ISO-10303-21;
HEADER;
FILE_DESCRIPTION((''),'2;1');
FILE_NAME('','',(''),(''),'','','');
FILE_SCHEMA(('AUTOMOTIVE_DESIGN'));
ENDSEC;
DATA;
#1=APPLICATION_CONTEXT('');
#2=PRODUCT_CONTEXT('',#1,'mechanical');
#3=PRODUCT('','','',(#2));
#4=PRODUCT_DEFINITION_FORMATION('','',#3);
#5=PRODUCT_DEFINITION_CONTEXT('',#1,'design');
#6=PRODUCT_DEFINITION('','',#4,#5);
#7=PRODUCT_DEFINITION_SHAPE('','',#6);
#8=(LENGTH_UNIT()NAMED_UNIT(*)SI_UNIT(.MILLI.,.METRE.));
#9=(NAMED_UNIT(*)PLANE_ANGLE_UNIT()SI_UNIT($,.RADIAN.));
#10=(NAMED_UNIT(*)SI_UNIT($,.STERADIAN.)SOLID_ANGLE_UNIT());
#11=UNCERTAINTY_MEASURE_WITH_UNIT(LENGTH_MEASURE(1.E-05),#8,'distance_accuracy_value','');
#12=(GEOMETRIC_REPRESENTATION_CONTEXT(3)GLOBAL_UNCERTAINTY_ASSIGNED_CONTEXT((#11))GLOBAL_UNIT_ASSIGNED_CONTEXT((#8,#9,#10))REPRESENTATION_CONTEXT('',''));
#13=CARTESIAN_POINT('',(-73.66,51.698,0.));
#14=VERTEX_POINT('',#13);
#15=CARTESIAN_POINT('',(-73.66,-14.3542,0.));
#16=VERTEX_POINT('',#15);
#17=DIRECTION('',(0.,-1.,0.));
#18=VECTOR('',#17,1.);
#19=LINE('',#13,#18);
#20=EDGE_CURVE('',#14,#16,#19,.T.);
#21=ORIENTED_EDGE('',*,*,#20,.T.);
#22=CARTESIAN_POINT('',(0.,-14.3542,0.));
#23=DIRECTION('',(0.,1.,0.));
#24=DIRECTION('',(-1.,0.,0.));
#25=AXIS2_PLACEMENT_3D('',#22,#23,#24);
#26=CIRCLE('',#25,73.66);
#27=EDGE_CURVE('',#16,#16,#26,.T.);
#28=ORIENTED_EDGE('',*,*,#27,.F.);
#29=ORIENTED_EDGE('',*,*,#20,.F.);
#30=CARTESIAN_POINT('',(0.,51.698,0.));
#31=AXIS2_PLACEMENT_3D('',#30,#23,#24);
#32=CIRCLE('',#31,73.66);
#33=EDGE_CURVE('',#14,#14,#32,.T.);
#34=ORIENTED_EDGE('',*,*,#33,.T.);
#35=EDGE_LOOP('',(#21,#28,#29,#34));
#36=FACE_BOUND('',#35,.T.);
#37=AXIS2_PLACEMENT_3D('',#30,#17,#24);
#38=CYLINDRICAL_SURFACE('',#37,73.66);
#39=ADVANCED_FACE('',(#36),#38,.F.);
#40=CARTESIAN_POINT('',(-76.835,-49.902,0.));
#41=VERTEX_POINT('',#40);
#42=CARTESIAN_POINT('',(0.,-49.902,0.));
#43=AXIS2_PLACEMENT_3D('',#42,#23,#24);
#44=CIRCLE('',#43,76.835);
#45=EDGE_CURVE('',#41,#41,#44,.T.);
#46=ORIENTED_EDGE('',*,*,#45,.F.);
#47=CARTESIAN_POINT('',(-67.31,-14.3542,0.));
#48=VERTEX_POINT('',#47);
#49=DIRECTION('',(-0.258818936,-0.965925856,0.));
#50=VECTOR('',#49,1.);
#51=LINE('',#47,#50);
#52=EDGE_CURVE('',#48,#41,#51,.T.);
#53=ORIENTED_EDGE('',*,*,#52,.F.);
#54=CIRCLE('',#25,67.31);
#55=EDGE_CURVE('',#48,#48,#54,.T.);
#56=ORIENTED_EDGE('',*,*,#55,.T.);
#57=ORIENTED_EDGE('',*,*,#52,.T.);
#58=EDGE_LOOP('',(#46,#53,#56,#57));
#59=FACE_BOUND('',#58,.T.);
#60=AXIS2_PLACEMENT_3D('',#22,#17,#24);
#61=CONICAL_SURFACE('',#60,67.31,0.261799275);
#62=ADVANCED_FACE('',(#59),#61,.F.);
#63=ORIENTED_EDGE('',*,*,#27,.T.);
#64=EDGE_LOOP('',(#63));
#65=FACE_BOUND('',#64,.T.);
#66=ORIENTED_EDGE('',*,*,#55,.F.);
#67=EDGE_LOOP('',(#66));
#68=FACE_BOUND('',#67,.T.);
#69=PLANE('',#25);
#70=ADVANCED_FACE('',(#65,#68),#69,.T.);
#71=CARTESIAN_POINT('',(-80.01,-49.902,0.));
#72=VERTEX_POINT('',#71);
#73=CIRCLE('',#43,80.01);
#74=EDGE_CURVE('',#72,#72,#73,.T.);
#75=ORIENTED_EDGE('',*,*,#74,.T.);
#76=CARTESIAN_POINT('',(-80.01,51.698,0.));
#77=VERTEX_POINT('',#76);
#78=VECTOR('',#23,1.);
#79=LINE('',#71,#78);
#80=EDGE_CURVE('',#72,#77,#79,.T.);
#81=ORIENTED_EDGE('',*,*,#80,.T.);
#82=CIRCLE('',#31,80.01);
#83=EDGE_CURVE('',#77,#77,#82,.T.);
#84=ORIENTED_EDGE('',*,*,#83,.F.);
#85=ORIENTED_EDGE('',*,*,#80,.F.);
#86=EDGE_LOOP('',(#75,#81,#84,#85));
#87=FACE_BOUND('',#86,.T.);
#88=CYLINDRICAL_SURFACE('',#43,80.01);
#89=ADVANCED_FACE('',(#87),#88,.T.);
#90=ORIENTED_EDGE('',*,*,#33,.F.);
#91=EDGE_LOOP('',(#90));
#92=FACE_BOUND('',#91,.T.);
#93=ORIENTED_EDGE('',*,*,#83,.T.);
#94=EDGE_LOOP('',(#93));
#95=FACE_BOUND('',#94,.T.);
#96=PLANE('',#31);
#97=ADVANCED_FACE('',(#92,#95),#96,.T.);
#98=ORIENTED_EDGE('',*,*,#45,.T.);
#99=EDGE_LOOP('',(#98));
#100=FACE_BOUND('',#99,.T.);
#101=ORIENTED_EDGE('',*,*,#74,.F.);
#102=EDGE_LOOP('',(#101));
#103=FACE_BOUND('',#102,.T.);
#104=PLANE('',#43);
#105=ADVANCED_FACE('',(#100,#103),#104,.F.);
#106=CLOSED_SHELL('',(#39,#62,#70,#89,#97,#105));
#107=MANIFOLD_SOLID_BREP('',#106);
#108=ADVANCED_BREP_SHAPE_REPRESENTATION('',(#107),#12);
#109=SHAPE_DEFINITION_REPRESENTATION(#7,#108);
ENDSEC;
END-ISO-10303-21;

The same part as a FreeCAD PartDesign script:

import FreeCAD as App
import Part
import Sketcher
from FreeCAD import Vector
Q = App.Units.Quantity

doc = App.newDocument("Part")
body = doc.addObject("PartDesign::Body", "Body")

# Sketch on XY plane
sketch1 = body.newObject("Sketcher::SketchObject", "Sketch")
sketch1.AttachmentSupport = (doc.getObject("XY_Plane"), [""])
sketch1.MapMode = "FlatFace"
sketch1.addGeometry(Part.LineSegment(Vector(-73.7, -14.4, 0), Vector(-73.7, 51.7, 0)), False)
sketch1.addGeometry(Part.LineSegment(Vector(-73.7, 51.7, 0), Vector(-80, 51.7, 0)), False)
sketch1.addGeometry(Part.LineSegment(Vector(-80, 51.7, 0), Vector(-80, -49.9, 0)), False)
sketch1.addGeometry(Part.LineSegment(Vector(-80, -49.9, 0), Vector(-76.8, -49.9, 0)), False)
sketch1.addGeometry(Part.LineSegment(Vector(-76.8, -49.9, 0), Vector(-67.3, -14.4, 0)), False)
sketch1.addGeometry(Part.LineSegment(Vector(-67.3, -14.4, 0), Vector(-73.7, -14.4, 0)), False)
sketch1.addConstraint(Sketcher.Constraint("Coincident", 0, 2, 1, 1))
sketch1.addConstraint(Sketcher.Constraint("Coincident", 1, 2, 2, 1))
sketch1.addConstraint(Sketcher.Constraint("Coincident", 2, 2, 3, 1))
sketch1.addConstraint(Sketcher.Constraint("Coincident", 3, 2, 4, 1))
sketch1.addConstraint(Sketcher.Constraint("Coincident", 4, 2, 5, 1))
sketch1.addConstraint(Sketcher.Constraint("Coincident", 5, 2, 0, 1))
sketch1.addConstraint(Sketcher.Constraint("Vertical", 0))
sketch1.addConstraint(Sketcher.Constraint("Horizontal", 1))
sketch1.addConstraint(Sketcher.Constraint("Vertical", 2))
sketch1.addConstraint(Sketcher.Constraint("Horizontal", 3))
sketch1.addConstraint(Sketcher.Constraint("Horizontal", 5))
sketch1.addConstraint(Sketcher.Constraint("Equal", 1, 5))
sketch1.addConstraint(Sketcher.Constraint("DistanceY", 2, 2, 2, 1, Q("4 in")))
sketch1.addConstraint(Sketcher.Constraint("DistanceX", 1, 2, 1, 1, Q("0.25 in")))
sketch1.addConstraint(Sketcher.Constraint("DistanceX", 3, 1, 3, 2, Q("0.125 in")))
sketch1.addConstraint(Sketcher.Constraint("DistanceX", 4, 2, -1, 1, Q("2.65 in")))
sketch1.addConstraint(Sketcher.Constraint("Angle", 4, Q("75 deg")))
sketch1.addConstraint(Sketcher.Constraint("DistanceY", -1, 1, 0, 2, Q("51.698 mm")))
revolution = body.newObject("PartDesign::Revolution", "Revolution")
revolution.Profile = sketch1
revolution.ReferenceAxis = (sketch1, ["V_Axis"])
revolution.Angle = 360

doc.recompute()
